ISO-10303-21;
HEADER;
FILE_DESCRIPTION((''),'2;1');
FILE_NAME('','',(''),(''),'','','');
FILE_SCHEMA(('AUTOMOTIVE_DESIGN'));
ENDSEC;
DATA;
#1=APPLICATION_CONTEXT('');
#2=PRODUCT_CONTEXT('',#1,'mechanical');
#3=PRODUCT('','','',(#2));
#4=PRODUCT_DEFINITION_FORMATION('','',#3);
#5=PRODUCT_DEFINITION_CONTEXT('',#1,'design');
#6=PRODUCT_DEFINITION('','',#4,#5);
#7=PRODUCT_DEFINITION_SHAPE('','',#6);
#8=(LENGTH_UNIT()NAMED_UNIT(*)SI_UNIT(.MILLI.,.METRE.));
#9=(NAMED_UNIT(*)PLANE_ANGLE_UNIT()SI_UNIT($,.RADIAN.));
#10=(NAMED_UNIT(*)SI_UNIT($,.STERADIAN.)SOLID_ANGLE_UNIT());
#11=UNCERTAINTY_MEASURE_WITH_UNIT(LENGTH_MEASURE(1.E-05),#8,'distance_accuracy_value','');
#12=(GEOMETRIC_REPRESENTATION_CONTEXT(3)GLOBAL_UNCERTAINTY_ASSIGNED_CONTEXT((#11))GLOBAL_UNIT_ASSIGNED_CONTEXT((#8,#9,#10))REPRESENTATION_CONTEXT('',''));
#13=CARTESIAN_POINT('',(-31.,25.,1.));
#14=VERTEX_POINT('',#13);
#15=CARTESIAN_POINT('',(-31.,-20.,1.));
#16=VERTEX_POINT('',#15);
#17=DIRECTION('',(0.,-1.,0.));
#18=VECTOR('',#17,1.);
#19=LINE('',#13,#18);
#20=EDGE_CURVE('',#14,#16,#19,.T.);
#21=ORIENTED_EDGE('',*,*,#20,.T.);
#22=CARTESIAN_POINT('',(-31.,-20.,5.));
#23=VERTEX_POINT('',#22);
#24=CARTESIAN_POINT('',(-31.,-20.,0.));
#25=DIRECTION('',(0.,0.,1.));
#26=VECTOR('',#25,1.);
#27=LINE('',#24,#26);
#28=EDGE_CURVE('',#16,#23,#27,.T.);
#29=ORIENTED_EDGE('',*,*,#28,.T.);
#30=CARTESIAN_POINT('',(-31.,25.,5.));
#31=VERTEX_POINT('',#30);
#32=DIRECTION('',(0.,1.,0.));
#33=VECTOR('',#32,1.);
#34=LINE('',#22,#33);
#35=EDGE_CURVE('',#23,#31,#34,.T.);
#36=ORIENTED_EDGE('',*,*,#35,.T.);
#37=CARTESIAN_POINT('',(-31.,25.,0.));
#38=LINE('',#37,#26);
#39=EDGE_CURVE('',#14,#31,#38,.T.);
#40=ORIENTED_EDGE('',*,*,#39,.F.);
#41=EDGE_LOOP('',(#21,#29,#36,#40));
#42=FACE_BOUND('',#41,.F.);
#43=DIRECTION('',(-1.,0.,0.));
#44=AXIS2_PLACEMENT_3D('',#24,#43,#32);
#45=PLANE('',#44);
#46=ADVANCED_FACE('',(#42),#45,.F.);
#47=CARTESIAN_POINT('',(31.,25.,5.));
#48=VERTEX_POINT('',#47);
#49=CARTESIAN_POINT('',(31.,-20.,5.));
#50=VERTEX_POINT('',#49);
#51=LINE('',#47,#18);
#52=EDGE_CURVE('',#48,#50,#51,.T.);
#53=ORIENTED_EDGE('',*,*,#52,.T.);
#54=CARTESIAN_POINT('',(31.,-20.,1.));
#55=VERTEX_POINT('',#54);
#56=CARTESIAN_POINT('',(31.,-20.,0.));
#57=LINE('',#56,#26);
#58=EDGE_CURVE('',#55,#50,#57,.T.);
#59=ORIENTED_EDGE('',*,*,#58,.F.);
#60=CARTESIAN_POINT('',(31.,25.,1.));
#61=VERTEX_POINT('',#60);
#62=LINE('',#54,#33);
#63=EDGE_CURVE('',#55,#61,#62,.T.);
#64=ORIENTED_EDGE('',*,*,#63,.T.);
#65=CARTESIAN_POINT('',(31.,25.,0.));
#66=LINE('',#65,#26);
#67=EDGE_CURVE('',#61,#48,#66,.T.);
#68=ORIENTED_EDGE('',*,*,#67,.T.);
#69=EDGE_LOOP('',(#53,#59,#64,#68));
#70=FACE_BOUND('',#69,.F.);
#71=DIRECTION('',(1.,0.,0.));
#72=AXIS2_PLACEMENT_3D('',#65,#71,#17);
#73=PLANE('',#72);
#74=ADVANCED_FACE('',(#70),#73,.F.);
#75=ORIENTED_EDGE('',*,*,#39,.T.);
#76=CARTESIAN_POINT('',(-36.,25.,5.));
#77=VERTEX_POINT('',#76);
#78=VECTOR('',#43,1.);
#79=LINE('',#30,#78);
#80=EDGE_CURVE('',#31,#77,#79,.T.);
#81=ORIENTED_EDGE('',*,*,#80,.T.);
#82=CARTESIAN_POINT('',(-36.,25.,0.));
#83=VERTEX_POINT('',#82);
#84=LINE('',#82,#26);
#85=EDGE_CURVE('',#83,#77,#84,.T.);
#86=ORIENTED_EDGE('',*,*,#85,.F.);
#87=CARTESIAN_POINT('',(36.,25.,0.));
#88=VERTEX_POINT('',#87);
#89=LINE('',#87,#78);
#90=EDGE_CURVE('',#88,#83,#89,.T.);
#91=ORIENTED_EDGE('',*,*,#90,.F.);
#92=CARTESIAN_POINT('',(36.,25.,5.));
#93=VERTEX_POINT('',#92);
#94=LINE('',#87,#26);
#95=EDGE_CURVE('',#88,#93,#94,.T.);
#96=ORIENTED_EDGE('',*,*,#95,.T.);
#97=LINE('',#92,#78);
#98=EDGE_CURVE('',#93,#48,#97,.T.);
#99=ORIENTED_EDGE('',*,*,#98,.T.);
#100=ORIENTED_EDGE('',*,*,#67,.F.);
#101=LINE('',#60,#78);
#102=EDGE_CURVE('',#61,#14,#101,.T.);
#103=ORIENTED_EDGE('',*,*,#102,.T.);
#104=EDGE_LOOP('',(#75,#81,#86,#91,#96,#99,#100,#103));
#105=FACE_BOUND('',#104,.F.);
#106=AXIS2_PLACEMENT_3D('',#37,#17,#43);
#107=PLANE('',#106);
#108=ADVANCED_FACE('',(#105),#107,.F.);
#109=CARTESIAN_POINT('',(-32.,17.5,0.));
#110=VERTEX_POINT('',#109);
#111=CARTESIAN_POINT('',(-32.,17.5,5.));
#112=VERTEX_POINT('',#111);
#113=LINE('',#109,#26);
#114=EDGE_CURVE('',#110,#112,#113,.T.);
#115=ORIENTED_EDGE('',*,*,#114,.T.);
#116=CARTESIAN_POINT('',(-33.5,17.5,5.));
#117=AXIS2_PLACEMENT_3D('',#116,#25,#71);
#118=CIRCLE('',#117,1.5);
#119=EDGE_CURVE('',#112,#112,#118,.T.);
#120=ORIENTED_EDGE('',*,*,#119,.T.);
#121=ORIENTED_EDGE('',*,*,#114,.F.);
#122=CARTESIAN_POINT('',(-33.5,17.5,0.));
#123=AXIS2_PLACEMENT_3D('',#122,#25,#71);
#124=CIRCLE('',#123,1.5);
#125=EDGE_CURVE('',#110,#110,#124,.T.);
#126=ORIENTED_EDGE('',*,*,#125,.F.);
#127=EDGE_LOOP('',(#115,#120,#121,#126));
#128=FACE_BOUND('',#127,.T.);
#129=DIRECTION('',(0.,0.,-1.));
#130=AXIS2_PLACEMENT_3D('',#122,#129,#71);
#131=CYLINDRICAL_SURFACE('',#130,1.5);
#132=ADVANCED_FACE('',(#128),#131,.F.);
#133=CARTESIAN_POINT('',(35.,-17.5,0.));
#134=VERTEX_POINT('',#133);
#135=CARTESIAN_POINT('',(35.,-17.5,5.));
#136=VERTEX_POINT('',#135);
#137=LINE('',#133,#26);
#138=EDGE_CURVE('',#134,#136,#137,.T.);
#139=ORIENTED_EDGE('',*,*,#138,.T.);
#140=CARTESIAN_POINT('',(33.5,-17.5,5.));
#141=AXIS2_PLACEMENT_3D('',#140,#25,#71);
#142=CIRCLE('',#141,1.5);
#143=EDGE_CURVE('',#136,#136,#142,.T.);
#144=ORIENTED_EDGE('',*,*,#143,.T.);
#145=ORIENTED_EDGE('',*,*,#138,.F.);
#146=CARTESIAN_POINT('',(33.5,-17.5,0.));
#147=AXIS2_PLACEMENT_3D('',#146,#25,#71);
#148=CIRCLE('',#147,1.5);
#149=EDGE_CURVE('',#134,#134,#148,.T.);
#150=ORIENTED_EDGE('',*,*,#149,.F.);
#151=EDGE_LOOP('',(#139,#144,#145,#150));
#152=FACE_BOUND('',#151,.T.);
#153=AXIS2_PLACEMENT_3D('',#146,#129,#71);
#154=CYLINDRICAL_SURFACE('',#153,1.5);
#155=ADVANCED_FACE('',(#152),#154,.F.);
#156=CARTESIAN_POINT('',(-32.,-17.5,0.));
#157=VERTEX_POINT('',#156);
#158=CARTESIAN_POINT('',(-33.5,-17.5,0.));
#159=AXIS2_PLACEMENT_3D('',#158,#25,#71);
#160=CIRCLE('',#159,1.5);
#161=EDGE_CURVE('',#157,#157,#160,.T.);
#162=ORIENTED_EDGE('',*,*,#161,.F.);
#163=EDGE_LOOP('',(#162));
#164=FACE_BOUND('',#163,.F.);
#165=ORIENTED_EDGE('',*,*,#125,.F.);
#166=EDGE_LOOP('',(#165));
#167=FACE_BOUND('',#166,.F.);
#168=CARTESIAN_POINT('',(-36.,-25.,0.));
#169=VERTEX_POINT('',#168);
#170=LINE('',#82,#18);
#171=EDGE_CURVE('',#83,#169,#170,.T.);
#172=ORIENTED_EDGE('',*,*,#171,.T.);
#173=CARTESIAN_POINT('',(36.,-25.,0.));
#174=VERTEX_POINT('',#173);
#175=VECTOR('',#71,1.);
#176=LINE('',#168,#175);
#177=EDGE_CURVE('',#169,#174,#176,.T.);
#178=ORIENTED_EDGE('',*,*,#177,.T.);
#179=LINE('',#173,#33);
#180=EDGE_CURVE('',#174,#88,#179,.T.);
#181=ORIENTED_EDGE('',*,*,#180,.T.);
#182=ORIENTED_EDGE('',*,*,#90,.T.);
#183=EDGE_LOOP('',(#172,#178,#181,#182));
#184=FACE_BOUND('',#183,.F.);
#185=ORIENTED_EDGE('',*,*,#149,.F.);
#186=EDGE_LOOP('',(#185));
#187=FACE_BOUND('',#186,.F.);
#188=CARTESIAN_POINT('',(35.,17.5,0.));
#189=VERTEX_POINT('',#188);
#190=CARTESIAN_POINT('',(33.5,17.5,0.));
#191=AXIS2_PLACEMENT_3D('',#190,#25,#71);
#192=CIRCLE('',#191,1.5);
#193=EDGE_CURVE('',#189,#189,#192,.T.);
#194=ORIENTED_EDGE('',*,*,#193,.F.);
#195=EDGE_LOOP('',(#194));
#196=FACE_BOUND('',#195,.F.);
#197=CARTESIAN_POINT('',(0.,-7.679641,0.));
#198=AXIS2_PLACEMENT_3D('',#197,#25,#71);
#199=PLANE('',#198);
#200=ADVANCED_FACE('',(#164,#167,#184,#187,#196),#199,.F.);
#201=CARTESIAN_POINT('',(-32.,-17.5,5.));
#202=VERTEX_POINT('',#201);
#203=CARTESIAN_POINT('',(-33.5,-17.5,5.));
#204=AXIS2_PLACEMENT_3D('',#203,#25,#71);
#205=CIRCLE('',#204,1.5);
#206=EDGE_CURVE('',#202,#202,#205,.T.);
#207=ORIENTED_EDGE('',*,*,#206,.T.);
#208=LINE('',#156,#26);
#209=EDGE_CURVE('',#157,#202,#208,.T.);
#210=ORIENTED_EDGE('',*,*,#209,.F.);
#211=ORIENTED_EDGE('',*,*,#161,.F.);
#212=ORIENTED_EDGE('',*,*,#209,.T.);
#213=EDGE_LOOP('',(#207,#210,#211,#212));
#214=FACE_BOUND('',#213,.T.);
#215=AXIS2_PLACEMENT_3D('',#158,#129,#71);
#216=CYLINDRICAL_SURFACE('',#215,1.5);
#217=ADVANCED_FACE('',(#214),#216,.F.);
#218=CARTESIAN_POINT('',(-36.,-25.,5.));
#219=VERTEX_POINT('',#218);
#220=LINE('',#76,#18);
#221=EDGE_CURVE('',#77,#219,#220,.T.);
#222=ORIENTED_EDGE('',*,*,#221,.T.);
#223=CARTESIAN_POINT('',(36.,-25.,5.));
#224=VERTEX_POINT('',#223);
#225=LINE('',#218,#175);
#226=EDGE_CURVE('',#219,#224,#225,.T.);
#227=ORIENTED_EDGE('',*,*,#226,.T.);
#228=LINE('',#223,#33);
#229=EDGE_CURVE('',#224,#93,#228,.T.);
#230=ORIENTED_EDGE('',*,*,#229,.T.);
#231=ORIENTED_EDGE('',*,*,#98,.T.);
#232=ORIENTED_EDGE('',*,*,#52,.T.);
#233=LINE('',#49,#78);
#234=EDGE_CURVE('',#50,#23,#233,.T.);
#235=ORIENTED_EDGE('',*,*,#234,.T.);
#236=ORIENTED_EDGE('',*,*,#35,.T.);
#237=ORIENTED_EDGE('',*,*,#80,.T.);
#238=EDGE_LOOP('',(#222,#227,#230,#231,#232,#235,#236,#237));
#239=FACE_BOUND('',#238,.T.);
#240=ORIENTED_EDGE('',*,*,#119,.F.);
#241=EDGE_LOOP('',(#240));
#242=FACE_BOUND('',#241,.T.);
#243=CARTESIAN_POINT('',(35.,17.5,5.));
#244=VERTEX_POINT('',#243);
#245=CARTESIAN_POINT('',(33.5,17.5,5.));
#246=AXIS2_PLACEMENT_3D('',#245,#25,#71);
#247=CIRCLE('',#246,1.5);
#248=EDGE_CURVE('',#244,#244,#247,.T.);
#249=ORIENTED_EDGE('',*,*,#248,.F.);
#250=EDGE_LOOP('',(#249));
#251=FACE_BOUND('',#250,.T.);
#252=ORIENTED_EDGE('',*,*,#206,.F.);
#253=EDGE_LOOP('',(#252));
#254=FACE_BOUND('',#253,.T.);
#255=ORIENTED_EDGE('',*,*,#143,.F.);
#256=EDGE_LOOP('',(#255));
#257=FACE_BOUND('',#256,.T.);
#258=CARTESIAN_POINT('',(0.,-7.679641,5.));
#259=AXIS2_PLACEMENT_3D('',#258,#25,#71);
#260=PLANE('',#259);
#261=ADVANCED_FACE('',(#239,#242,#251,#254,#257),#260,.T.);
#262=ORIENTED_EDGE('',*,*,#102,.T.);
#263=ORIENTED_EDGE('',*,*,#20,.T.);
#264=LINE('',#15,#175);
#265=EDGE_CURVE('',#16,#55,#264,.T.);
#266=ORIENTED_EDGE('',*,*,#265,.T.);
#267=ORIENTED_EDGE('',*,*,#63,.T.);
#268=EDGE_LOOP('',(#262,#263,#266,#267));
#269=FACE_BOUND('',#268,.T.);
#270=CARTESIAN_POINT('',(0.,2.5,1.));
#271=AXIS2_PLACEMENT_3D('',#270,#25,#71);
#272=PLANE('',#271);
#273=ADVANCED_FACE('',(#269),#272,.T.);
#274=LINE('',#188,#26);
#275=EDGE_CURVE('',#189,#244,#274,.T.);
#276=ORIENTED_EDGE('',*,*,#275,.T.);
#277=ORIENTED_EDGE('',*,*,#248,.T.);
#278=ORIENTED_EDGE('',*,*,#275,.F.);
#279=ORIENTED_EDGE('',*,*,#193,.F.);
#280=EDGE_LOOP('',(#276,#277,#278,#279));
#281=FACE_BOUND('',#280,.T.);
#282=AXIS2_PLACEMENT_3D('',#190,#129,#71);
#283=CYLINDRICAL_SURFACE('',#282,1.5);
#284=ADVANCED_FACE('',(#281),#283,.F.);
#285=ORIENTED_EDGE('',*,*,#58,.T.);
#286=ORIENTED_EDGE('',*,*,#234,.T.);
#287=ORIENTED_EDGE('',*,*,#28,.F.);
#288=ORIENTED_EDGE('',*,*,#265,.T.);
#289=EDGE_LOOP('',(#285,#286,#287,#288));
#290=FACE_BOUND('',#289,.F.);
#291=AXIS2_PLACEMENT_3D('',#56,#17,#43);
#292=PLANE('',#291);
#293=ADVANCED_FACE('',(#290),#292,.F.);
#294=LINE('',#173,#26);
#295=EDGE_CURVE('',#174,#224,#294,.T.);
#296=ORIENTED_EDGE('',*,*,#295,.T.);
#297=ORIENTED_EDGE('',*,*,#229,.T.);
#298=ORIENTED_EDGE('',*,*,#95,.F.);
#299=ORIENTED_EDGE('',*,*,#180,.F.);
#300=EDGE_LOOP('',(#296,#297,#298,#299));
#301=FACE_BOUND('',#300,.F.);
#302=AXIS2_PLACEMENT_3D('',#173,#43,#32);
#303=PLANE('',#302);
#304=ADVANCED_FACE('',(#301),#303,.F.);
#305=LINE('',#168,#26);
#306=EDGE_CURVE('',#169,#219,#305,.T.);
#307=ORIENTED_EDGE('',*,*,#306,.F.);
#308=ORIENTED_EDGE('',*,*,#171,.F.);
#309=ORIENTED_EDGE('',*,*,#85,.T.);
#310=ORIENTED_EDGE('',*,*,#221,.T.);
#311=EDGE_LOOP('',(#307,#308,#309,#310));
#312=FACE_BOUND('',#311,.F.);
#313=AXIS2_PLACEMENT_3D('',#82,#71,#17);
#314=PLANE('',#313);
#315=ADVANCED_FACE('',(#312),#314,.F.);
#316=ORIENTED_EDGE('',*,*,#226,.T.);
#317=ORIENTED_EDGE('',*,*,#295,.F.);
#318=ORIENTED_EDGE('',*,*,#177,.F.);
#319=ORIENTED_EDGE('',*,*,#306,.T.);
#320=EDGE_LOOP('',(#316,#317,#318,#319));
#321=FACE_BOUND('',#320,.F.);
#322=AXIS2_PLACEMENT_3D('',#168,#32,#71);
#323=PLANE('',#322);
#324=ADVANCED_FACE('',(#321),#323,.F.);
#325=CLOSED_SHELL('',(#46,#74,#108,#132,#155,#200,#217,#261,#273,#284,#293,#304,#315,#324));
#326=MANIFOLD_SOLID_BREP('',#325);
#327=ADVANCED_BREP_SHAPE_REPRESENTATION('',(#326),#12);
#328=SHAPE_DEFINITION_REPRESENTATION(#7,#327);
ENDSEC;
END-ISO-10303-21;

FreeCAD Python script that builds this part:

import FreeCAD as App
import Part
import Sketcher

V = App.Vector
Q = App.Units.Quantity

doc = App.newDocument("Part")
params = doc.addObject("Spreadsheet::Sheet", "Params")
for row, (alias, value) in enumerate([
    ("sketch1_width", "62 mm"),
    ("sketch1_height", "45 mm"),
    ("pad1_length", "1 mm"),
    ("sketch2_diameter", "3 mm"),
    ("sketch2_width", "72 mm"),
    ("sketch2_width2", "5 mm"),
    ("sketch2_height", "50 mm"),
    ("sketch2_height2", "45 mm"),
    ("pad2_length", "5 mm"),
], start=1):
    params.set(f"A{row}", alias)
    params.set(f"B{row}", "=" + value)
    params.setAlias(f"B{row}", alias)

body = doc.addObject("PartDesign::Body", "Body")

# Sketch on XY plane
sketch1 = body.newObject("Sketcher::SketchObject", "Sketch")
sketch1.AttachmentSupport = (doc.getObject("XY_Plane"), [""])
sketch1.MapMode = "FlatFace"
sketch1.addGeometry(Part.LineSegment(V(-31, 25, 0), V(-31, -20, 0)), False)
sketch1.addGeometry(Part.LineSegment(V(-31, -20, 0), V(31, -20, 0)), False)
sketch1.addGeometry(Part.LineSegment(V(31, -20, 0), V(31, 25, 0)), False)
sketch1.addGeometry(Part.LineSegment(V(31, 25, 0), V(-31, 25, 0)), False)
sketch1.addConstraint(Sketcher.Constraint("Coincident", 0, 2, 1, 1))
sketch1.addConstraint(Sketcher.Constraint("Coincident", 1, 2, 2, 1))
sketch1.addConstraint(Sketcher.Constraint("Coincident", 2, 2, 3, 1))
sketch1.addConstraint(Sketcher.Constraint("Coincident", 3, 2, 0, 1))
sketch1.addConstraint(Sketcher.Constraint("Vertical", 0))
sketch1.addConstraint(Sketcher.Constraint("Horizontal", 1))
sketch1.addConstraint(Sketcher.Constraint("Vertical", 2))
sketch1.addConstraint(Sketcher.Constraint("Horizontal", 3))
sketch1.addConstraint(Sketcher.Constraint("DistanceX", 1, 1, 1, 2, Q("62 mm")))
sketch1.addConstraint(Sketcher.Constraint("DistanceY", 0, 2, 0, 1, Q("45 mm")))
sketch1.addConstraint(Sketcher.Constraint("DistanceX", 0, 2, -1, 1, Q("31 mm")))
sketch1.addConstraint(Sketcher.Constraint("DistanceY", 0, 2, -1, 1, Q("20 mm")))
sketch1.setExpression("Constraints[8]", "Params.sketch1_width")
sketch1.setExpression("Constraints[9]", "Params.sketch1_height")
pad1 = body.newObject("PartDesign::Pad", "Pad")
pad1.Profile = sketch1
pad1.setExpression("Length", "Params.pad1_length")

# Sketch on XY plane
sketch2 = body.newObject("Sketcher::SketchObject", "Sketch001")
sketch2.AttachmentSupport = (doc.getObject("XY_Plane"), [""])
sketch2.MapMode = "FlatFace"
sketch2.addGeometry(Part.LineSegment(V(-36, 25, 0), V(-36, -25, 0)), False)
sketch2.addGeometry(Part.LineSegment(V(-36, -25, 0), V(36, -25, 0)), False)
sketch2.addGeometry(Part.LineSegment(V(36, -25, 0), V(36, 25, 0)), False)
sketch2.addGeometry(Part.LineSegment(V(36, 25, 0), V(31, 25, 0)), False)
sketch2.addGeometry(Part.LineSegment(V(31, 25, 0), V(31, -20, 0)), False)
sketch2.addGeometry(Part.LineSegment(V(31, -20, 0), V(-31, -20, 0)), False)
sketch2.addGeometry(Part.LineSegment(V(-31, -20, 0), V(-31, 25, 0)), False)
sketch2.addGeometry(Part.LineSegment(V(-31, 25, 0), V(-36, 25, 0)), False)
sketch2.addGeometry(Part.Circle(V(-33.5, -17.5, 0), V(0, 0, 1), 1.5), False)
sketch2.addGeometry(Part.Circle(V(33.5, -17.5, 0), V(0, 0, 1), 1.5), False)
sketch2.addGeometry(Part.Circle(V(-33.5, 17.5, 0), V(0, 0, 1), 1.5), False)
sketch2.addGeometry(Part.Circle(V(33.5, 17.5, 0), V(0, 0, 1), 1.5), False)
sketch2.addConstraint(Sketcher.Constraint("Coincident", 0, 2, 1, 1))
sketch2.addConstraint(Sketcher.Constraint("Coincident", 1, 2, 2, 1))
sketch2.addConstraint(Sketcher.Constraint("Coincident", 2, 2, 3, 1))
sketch2.addConstraint(Sketcher.Constraint("Coincident", 3, 2, 4, 1))
sketch2.addConstraint(Sketcher.Constraint("Coincident", 4, 2, 5, 1))
sketch2.addConstraint(Sketcher.Constraint("Coincident", 5, 2, 6, 1))
sketch2.addConstraint(Sketcher.Constraint("Coincident", 6, 2, 7, 1))
sketch2.addConstraint(Sketcher.Constraint("Coincident", 7, 2, 0, 1))
sketch2.addConstraint(Sketcher.Constraint("Vertical", 0))
sketch2.addConstraint(Sketcher.Constraint("Horizontal", 1))
sketch2.addConstraint(Sketcher.Constraint("Vertical", 2))
sketch2.addConstraint(Sketcher.Constraint("Horizontal", 3))
sketch2.addConstraint(Sketcher.Constraint("Vertical", 4))
sketch2.addConstraint(Sketcher.Constraint("Horizontal", 5))
sketch2.addConstraint(Sketcher.Constraint("Vertical", 6))
sketch2.addConstraint(Sketcher.Constraint("Horizontal", 7))
sketch2.addConstraint(Sketcher.Constraint("Equal", 8, 9))
sketch2.addConstraint(Sketcher.Constraint("Equal", 9, 10))
sketch2.addConstraint(Sketcher.Constraint("Equal", 10, 11))
sketch2.addConstraint(Sketcher.Constraint("Symmetric", 9, 3, 10, 3, -1, 1))
sketch2.addConstraint(Sketcher.Constraint("Symmetric", 8, 3, 11, 3, -1, 1))
sketch2.addConstraint(Sketcher.Constraint("Symmetric", 0, 2, 2, 2, -1, 1))
sketch2.addConstraint(Sketcher.Constraint("Symmetric", 8, 3, 9, 3, -2))
sketch2.addConstraint(Sketcher.Constraint("Symmetric", 3, 2, 6, 2, -2))
sketch2.addConstraint(Sketcher.Constraint("Diameter", 8, Q("3 mm")))
sketch2.addConstraint(Sketcher.Constraint("DistanceX", 1, 1, 1, 2, Q("72 mm")))
sketch2.addConstraint(Sketcher.Constraint("DistanceX", 3, 2, 3, 1, Q("5 mm")))
sketch2.addConstraint(Sketcher.Constraint("DistanceY", 0, 2, 0, 1, Q("50 mm")))
sketch2.addConstraint(Sketcher.Constraint("DistanceY", 4, 2, 4, 1, Q("45 mm")))
sketch2.addConstraint(Sketcher.Constraint("DistanceX", 8, 3, 9, 3, Q("67 mm")))
sketch2.addConstraint(Sketcher.Constraint("DistanceY", 8, 3, 10, 3, Q("35 mm")))
sketch2.setExpression("Constraints[24]", "Params.sketch2_diameter")
sketch2.setExpression("Constraints[25]", "Params.sketch2_width")
sketch2.setExpression("Constraints[26]", "Params.sketch2_width2")
sketch2.setExpression("Constraints[27]", "Params.sketch2_height")
sketch2.setExpression("Constraints[28]", "Params.sketch2_height2")
pad2 = body.newObject("PartDesign::Pad", "Pad001")
pad2.Profile = sketch2
pad2.setExpression("Length", "Params.pad2_length")

doc.recompute()
